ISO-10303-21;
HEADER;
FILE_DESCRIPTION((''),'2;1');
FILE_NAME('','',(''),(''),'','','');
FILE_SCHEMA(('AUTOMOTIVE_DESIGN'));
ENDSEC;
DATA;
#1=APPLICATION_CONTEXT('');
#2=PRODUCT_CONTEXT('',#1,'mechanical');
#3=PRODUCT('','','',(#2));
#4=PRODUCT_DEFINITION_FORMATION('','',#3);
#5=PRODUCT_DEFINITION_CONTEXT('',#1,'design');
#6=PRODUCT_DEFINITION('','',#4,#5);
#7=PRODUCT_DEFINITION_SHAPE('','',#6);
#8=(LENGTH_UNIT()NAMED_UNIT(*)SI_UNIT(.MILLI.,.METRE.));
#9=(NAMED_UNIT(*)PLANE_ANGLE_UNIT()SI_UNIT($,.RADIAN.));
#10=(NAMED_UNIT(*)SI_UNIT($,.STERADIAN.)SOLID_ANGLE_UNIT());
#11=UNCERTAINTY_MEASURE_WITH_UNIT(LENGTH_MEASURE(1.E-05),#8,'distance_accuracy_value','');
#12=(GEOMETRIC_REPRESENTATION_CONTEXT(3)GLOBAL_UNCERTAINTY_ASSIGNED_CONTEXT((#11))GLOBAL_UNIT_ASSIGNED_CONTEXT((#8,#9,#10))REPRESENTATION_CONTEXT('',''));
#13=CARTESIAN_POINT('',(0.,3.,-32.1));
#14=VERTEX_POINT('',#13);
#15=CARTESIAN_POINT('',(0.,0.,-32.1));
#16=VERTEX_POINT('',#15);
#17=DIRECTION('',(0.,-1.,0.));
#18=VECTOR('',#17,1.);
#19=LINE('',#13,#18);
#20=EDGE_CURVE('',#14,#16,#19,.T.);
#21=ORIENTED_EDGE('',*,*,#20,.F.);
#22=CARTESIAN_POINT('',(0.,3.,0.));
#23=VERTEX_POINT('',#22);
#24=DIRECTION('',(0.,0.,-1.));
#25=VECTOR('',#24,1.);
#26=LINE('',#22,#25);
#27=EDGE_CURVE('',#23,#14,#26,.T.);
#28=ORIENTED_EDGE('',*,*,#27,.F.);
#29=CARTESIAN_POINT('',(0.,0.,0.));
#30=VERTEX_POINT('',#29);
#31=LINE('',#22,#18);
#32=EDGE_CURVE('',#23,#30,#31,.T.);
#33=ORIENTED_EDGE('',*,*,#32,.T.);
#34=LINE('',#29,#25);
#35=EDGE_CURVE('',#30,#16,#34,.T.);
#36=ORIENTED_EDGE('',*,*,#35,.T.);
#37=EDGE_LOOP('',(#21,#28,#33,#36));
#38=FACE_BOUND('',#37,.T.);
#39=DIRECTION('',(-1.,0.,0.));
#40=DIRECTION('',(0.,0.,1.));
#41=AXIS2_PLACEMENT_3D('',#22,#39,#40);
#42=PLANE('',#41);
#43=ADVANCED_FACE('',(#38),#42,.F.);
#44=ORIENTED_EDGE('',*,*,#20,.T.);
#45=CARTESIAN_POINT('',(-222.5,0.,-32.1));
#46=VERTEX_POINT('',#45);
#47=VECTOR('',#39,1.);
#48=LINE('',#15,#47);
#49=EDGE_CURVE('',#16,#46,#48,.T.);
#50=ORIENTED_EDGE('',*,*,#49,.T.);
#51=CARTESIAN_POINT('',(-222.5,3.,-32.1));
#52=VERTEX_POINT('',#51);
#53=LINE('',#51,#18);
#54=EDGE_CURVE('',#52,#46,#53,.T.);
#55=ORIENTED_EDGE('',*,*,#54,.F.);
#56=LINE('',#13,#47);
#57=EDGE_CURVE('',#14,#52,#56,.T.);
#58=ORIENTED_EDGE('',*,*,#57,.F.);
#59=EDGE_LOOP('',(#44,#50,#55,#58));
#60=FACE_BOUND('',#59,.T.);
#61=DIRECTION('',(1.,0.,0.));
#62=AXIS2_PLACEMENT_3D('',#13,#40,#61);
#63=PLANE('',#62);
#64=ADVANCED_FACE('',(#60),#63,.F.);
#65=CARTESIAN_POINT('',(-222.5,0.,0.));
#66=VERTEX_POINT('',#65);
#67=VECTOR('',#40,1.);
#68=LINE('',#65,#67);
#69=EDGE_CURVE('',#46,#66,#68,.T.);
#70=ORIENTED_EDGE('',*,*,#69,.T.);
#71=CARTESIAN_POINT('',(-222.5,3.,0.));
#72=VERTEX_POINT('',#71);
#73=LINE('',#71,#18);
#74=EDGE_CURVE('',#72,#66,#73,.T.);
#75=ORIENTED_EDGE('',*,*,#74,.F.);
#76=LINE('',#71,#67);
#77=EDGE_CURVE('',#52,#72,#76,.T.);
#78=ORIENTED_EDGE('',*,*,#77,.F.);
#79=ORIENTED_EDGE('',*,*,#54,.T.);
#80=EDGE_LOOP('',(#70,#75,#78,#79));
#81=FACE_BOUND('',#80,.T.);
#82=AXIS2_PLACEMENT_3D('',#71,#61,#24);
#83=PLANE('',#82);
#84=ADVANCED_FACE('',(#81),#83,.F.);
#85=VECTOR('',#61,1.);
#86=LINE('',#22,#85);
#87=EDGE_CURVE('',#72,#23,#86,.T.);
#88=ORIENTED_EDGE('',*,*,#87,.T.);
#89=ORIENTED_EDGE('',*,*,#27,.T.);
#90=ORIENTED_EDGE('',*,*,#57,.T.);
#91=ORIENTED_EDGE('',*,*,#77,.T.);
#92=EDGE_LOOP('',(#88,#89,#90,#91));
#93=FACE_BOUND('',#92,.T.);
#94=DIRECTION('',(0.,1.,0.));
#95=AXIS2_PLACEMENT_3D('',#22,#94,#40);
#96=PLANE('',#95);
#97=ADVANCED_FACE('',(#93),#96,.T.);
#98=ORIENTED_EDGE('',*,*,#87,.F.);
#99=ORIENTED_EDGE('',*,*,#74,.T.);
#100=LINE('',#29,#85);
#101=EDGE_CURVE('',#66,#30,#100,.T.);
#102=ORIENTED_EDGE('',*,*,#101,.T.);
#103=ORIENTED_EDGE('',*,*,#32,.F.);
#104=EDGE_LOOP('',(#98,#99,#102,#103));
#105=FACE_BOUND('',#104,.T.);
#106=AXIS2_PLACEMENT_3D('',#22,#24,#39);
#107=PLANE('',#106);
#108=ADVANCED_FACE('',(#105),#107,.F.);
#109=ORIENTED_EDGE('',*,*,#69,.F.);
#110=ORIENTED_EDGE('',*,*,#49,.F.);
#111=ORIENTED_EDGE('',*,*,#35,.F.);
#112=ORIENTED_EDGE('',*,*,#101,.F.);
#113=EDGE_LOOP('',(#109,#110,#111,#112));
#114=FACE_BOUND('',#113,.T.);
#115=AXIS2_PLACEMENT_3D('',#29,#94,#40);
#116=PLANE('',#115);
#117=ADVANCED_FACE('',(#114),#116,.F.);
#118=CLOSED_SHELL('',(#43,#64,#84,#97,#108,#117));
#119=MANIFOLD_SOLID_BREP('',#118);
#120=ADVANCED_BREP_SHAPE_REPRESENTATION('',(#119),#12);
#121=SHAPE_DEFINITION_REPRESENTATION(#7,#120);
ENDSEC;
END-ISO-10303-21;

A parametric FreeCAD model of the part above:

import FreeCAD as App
import Part
import Sketcher

V = App.Vector
Q = App.Units.Quantity

doc = App.newDocument("Part")
body = doc.addObject("PartDesign::Body", "Body")

sketch1 = body.newObject("Sketcher::SketchObject", "Sketch")
sketch1.AttachmentSupport = (doc.getObject("XZ_Plane"), [""])
sketch1.MapMode = "FlatFace"
sketch1.addGeometry(Part.LineSegment(V(-222, -32, 0), V(-222, 0, 0)), False)
sketch1.addGeometry(Part.LineSegment(V(-222, 0, 0), V(0, 0, 0)), False)
sketch1.addGeometry(Part.LineSegment(V(0, 0, 0), V(0, -32, 0)), False)
sketch1.addGeometry(Part.LineSegment(V(0, -32, 0), V(-222, -32, 0)), False)
sketch1.addConstraint(Sketcher.Constraint("Coincident", 0, 2, 1, 1))
sketch1.addConstraint(Sketcher.Constraint("Coincident", 1, 2, 2, 1))
sketch1.addConstraint(Sketcher.Constraint("Coincident", 2, 2, 3, 1))
sketch1.addConstraint(Sketcher.Constraint("Coincident", 3, 2, 0, 1))
sketch1.addConstraint(Sketcher.Constraint("Vertical", 0))
sketch1.addConstraint(Sketcher.Constraint("Horizontal", 1))
sketch1.addConstraint(Sketcher.Constraint("Vertical", 2))
sketch1.addConstraint(Sketcher.Constraint("Horizontal", 3))
sketch1.addConstraint(Sketcher.Constraint("Coincident", 1, 2, -1, 1))
sketch1.addConstraint(Sketcher.Constraint("DistanceX", 1, 1, 1, 2, Q("222.5 mm")))
sketch1.addConstraint(Sketcher.Constraint("DistanceY", 0, 1, 0, 2, Q("32.1 mm")))
pad1 = body.newObject("PartDesign::Pad", "Pad")
pad1.Profile = sketch1
pad1.Length = 3
pad1.Reversed = True

doc.recompute()
